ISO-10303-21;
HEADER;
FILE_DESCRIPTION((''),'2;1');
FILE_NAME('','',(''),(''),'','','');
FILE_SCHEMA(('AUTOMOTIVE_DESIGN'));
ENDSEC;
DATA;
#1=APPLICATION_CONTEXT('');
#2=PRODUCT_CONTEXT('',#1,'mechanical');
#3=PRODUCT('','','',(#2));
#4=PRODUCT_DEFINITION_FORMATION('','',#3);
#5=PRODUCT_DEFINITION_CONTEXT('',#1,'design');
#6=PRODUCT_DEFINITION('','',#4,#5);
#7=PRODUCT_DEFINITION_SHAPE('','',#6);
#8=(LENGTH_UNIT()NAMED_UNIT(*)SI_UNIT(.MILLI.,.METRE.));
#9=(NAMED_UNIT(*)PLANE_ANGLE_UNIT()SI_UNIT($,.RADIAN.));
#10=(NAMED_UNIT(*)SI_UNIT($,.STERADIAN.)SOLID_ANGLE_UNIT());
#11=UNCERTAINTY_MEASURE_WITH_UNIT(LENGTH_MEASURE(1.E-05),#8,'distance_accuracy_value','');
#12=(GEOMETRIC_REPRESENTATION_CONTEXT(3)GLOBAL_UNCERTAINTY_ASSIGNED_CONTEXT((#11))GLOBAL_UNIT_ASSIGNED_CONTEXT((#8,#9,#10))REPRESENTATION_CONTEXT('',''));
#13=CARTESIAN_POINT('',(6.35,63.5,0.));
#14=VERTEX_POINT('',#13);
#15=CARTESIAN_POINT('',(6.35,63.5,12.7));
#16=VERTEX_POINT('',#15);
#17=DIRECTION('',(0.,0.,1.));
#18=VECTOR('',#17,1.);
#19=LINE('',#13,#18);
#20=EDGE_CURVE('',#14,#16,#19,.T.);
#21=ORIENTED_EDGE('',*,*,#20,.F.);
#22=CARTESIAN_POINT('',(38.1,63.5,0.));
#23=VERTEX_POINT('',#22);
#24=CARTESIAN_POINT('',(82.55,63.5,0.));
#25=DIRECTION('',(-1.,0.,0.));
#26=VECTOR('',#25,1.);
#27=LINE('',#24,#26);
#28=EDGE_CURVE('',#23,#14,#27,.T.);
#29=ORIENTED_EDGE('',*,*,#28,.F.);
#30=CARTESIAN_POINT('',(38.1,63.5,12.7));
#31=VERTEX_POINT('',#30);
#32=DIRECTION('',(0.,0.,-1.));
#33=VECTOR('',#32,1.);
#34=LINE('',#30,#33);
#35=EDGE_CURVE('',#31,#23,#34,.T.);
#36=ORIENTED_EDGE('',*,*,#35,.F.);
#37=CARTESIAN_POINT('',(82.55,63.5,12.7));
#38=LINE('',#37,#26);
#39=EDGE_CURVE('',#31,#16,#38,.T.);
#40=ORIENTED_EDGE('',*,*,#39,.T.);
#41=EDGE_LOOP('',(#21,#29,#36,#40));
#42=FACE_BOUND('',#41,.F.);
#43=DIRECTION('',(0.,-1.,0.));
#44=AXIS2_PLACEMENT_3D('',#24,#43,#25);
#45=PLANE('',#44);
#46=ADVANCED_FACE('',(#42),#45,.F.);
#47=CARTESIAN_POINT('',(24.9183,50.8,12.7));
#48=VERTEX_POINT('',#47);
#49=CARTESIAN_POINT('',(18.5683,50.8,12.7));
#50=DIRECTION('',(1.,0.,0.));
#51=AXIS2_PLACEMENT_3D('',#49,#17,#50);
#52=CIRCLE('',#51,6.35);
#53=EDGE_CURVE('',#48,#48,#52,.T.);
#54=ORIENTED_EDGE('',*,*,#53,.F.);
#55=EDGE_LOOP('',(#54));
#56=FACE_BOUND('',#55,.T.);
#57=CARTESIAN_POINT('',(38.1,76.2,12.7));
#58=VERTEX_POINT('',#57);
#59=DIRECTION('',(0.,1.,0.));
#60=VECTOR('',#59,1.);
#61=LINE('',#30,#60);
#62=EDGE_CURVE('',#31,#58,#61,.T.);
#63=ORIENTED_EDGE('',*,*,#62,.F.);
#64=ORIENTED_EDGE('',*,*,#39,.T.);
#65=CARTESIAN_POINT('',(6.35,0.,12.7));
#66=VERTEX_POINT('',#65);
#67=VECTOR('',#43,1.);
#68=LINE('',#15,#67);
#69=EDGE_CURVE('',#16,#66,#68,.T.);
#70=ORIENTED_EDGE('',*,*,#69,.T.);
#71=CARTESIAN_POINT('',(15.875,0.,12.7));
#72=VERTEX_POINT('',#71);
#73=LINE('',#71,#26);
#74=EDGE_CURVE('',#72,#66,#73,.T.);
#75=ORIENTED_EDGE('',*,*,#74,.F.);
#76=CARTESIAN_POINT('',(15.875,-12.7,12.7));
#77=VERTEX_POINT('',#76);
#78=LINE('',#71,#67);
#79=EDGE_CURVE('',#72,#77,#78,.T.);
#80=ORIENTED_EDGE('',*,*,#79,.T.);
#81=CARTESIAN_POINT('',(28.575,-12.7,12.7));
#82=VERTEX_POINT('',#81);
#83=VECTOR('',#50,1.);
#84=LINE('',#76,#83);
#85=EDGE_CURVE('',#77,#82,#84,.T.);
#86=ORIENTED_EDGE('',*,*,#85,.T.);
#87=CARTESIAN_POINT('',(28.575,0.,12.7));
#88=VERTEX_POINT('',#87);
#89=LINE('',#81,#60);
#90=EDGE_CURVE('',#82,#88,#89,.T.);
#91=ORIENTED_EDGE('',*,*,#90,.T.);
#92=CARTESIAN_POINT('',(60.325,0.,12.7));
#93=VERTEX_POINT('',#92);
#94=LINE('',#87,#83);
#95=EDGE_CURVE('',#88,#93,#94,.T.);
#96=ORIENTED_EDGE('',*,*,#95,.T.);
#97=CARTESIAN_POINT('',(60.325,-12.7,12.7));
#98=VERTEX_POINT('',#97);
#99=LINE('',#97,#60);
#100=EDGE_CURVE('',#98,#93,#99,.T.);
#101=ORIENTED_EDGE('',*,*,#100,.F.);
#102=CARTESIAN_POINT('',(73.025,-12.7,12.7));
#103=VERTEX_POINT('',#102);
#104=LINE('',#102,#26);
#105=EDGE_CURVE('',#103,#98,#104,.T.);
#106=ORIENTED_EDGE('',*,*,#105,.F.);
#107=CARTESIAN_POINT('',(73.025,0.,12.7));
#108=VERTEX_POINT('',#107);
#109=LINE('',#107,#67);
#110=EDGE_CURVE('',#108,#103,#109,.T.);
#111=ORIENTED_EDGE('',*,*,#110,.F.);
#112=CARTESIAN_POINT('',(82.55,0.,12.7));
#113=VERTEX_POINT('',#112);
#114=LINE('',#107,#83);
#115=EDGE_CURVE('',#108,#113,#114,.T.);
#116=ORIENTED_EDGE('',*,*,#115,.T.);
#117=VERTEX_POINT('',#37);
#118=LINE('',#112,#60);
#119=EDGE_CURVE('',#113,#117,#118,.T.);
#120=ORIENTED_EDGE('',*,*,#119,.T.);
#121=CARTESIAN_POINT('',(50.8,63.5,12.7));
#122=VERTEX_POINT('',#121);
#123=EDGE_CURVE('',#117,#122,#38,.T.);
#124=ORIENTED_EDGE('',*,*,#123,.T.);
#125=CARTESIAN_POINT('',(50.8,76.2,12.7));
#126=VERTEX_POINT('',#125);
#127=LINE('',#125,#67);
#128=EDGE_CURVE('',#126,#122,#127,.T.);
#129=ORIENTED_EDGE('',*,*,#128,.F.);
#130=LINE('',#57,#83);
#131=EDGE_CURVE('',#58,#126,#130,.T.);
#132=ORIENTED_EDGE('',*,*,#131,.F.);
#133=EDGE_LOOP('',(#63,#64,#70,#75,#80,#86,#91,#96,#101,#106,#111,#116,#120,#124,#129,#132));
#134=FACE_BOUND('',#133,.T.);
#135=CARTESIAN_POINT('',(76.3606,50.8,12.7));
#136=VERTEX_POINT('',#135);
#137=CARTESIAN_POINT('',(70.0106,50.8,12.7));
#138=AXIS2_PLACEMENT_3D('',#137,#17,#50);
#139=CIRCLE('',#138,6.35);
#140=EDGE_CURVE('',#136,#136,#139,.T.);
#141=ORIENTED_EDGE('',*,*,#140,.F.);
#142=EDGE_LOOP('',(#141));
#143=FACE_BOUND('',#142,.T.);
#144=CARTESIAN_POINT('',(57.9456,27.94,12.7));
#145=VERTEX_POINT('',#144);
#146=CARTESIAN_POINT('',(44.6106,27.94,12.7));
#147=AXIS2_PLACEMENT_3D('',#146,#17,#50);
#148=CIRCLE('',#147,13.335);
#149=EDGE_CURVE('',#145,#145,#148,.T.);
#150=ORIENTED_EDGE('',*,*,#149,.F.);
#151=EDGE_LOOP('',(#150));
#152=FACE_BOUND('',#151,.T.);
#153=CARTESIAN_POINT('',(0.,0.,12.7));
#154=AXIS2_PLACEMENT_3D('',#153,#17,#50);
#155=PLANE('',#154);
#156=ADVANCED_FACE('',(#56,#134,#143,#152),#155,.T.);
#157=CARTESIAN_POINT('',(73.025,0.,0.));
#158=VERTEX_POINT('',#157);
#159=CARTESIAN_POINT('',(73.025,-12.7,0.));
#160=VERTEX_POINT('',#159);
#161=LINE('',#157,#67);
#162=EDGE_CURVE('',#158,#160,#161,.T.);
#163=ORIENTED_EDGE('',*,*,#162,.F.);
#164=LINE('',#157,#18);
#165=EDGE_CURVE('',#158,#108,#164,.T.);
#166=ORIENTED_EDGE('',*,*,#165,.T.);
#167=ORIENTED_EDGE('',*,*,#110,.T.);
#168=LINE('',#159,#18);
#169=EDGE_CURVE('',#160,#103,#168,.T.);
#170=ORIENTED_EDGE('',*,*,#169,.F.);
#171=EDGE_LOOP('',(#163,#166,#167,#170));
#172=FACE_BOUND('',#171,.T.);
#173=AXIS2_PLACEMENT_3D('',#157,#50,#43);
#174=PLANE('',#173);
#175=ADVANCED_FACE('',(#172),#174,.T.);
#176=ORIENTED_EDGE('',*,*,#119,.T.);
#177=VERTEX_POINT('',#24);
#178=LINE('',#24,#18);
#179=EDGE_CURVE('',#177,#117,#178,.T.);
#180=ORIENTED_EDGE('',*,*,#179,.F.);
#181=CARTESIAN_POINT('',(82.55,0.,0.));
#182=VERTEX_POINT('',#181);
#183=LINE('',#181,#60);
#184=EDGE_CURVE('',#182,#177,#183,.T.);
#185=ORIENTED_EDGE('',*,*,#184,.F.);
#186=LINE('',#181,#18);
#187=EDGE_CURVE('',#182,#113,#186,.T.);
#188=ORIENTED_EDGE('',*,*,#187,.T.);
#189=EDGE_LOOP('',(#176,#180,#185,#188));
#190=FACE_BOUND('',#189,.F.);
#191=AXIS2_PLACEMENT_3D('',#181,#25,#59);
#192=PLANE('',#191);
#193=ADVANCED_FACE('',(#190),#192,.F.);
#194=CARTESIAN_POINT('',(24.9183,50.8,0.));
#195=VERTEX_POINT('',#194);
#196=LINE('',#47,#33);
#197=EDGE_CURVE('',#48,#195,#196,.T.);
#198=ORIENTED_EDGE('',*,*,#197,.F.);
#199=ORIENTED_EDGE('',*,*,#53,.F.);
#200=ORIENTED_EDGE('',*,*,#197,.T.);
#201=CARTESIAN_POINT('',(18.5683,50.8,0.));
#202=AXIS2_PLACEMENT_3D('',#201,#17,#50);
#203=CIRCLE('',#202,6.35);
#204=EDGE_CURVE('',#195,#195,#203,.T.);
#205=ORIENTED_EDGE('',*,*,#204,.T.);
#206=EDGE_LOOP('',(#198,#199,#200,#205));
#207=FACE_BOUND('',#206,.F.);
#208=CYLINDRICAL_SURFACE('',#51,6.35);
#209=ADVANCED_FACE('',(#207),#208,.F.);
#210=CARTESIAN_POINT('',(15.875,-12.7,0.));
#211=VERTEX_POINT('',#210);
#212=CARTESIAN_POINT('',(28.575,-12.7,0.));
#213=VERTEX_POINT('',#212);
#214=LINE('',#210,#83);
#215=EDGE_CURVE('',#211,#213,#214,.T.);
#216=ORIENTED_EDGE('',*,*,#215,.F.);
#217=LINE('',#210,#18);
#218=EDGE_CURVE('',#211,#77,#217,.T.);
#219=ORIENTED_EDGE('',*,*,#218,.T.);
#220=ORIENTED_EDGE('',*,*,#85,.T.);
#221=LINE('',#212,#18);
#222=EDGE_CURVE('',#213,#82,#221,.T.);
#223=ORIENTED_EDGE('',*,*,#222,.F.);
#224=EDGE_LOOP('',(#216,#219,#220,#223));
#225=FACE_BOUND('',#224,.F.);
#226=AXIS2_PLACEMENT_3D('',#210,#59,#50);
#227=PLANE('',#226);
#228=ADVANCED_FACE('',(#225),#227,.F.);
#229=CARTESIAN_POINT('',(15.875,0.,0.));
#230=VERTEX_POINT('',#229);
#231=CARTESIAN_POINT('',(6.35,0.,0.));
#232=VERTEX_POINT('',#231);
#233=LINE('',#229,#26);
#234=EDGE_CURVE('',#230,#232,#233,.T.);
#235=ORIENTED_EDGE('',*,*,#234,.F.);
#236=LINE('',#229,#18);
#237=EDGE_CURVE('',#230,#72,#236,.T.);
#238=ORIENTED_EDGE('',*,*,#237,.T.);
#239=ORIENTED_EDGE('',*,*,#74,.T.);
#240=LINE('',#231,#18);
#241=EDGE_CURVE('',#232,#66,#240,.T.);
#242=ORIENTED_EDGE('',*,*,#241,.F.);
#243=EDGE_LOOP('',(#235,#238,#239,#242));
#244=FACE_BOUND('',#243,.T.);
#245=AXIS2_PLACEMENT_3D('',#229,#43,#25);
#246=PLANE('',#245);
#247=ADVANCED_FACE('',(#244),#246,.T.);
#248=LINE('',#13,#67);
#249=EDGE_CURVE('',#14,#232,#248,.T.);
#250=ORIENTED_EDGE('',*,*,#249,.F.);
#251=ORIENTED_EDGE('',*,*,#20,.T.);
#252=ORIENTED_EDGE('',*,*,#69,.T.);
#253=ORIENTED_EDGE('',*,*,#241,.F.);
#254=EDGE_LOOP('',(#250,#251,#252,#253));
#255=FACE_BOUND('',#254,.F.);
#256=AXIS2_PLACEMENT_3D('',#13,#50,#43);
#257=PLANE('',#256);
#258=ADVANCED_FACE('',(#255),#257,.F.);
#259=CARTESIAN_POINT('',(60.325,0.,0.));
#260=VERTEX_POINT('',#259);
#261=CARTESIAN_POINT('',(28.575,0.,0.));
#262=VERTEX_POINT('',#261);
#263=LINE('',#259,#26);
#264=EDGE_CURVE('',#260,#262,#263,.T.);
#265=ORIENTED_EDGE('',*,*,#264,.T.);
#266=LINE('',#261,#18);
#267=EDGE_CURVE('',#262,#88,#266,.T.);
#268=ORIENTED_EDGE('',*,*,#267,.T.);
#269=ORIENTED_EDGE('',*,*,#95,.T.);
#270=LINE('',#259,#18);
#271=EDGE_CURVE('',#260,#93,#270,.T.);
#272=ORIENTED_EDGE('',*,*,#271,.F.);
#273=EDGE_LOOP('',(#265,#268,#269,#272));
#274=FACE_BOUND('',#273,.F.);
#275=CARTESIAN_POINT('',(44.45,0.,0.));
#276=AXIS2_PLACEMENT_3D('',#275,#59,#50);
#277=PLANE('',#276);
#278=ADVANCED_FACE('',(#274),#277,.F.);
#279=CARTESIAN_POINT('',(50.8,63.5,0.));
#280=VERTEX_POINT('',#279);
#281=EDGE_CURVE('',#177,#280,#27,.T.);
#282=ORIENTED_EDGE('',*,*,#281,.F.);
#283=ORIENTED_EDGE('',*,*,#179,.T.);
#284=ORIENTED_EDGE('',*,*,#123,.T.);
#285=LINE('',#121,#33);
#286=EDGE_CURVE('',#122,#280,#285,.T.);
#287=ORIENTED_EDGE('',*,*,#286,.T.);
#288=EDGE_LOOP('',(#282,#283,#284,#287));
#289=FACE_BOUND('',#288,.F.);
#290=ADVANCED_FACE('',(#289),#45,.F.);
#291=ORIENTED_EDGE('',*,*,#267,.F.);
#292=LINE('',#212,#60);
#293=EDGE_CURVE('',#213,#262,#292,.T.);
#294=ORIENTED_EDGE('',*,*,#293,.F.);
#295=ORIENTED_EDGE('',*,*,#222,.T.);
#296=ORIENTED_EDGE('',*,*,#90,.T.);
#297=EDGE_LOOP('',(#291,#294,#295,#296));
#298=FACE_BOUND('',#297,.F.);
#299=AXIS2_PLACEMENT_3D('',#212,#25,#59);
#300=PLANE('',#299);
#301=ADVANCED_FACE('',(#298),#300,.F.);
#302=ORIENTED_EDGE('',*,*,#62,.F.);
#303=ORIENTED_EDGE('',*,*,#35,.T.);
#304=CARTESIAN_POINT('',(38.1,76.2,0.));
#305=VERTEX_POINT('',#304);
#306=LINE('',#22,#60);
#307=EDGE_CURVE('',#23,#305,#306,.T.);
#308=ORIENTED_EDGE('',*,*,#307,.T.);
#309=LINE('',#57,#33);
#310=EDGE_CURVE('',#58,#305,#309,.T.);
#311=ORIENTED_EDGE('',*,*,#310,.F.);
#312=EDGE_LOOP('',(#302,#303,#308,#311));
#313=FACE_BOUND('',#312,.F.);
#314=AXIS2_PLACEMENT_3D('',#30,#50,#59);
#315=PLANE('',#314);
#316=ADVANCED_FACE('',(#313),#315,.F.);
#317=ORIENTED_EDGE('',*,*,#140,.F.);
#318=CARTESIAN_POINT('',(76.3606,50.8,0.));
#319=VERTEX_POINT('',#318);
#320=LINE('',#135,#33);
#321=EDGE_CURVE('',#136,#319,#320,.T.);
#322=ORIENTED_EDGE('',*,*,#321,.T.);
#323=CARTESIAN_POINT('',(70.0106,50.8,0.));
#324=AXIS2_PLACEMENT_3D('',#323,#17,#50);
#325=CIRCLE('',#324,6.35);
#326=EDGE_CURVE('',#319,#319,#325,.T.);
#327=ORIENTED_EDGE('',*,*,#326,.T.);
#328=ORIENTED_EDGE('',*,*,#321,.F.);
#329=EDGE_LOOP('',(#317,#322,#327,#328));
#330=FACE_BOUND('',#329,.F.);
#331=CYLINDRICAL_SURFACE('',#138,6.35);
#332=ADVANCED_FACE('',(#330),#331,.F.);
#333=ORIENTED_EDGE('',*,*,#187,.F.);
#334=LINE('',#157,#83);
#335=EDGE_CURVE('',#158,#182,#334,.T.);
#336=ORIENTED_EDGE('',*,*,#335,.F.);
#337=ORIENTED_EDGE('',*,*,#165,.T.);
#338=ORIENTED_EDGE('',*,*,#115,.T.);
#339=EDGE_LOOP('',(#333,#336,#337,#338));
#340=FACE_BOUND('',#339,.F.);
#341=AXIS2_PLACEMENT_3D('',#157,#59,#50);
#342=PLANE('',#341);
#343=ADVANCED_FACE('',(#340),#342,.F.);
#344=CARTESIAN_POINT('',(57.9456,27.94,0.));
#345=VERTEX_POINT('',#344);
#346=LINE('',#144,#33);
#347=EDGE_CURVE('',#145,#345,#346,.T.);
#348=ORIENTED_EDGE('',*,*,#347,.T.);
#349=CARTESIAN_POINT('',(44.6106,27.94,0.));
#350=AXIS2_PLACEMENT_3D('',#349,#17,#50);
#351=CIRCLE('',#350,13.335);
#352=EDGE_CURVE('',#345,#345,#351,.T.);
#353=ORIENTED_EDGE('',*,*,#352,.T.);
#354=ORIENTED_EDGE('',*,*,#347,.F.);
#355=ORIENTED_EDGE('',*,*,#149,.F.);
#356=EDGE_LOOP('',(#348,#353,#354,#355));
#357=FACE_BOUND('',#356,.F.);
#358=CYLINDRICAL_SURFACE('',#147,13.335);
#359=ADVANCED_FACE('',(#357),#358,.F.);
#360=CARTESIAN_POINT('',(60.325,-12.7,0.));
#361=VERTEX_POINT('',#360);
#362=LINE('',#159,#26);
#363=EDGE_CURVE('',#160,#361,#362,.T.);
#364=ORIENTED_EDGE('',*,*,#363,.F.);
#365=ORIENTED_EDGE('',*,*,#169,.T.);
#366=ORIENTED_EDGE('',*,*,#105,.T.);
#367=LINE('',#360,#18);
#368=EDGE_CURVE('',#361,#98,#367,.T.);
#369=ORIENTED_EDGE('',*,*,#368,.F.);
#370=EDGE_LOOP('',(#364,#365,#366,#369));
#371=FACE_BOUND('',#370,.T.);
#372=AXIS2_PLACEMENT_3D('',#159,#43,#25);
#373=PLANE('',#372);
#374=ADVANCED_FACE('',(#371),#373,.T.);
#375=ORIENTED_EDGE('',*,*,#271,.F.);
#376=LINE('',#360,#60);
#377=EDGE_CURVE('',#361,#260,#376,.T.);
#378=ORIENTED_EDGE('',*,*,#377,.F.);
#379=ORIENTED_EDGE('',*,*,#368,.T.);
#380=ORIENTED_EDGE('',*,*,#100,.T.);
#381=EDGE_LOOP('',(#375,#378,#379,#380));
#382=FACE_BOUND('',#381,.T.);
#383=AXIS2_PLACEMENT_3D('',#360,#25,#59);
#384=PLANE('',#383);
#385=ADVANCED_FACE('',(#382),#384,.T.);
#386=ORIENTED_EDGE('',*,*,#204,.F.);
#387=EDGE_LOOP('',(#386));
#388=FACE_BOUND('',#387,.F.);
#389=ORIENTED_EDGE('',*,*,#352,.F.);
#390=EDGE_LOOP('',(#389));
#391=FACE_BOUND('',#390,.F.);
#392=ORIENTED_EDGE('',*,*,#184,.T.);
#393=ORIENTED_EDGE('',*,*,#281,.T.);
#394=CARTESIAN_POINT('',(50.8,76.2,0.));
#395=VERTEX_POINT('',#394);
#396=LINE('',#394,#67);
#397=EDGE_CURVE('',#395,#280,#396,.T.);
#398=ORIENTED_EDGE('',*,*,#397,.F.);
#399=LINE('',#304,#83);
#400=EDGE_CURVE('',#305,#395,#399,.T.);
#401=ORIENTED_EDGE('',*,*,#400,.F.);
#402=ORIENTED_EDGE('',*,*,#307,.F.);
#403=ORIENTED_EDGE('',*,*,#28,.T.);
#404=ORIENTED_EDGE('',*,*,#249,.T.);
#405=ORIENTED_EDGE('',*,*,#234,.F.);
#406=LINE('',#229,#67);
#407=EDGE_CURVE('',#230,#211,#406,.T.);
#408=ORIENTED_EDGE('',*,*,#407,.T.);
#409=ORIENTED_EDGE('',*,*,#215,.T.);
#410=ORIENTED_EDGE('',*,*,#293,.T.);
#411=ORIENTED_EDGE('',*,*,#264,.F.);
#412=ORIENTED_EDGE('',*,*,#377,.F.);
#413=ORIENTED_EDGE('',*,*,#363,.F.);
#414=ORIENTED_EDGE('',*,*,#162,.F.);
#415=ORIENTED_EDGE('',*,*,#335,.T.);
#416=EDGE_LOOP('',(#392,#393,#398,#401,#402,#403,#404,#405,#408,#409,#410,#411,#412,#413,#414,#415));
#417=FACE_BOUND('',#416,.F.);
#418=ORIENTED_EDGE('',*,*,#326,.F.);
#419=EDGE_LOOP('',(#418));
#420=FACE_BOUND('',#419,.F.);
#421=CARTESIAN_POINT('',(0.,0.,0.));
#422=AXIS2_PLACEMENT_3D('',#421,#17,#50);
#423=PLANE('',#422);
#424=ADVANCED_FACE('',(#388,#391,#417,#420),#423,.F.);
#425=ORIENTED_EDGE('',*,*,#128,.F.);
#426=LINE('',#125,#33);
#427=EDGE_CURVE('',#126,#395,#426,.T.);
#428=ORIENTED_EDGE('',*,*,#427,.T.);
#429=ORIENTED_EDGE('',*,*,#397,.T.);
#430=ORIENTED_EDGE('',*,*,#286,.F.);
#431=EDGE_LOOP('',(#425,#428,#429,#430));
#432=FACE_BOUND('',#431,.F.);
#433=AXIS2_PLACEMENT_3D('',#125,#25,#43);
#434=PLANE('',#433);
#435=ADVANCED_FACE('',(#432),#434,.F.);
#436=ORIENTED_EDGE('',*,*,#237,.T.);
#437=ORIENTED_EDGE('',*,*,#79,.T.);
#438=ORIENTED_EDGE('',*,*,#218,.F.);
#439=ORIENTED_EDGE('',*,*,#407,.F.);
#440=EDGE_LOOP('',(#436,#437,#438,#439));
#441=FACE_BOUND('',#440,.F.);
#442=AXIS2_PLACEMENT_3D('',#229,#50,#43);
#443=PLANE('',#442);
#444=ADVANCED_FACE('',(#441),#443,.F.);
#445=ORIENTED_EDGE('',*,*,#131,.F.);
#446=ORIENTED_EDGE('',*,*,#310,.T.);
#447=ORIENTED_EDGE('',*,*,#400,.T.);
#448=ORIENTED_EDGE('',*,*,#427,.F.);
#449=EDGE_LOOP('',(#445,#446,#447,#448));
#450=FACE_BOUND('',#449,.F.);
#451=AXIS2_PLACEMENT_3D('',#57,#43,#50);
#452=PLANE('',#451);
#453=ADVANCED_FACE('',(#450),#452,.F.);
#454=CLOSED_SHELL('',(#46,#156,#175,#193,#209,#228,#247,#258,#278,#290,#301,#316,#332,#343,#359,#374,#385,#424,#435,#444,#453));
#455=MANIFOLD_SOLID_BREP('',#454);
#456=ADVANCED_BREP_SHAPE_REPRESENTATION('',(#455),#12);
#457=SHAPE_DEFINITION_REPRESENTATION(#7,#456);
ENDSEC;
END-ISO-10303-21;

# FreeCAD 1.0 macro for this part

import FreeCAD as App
import Part
import Sketcher
Q = App.Units.Quantity


def add_polygon(sketch, points):
    """Adds a closed chain of lines whose ends are joined by coincident constraints."""
    first, n = sketch.GeometryCount, len(points)
    for a, b in zip(points, points[1:] + points[:1]):
        sketch.addGeometry(Part.LineSegment(App.Vector(*a, 0), App.Vector(*b, 0)), False)
    for i in range(n):
        sketch.addConstraint(Sketcher.Constraint("Coincident", first + i, 2, first + (i + 1) % n, 1))

doc = App.newDocument("Part")
body = doc.addObject("PartDesign::Body", "Body")

# Sketch on XY plane
sketch1 = body.newObject("Sketcher::SketchObject", "Sketch")
sketch1.AttachmentSupport = (doc.getObject("XY_Plane"), [""])
sketch1.MapMode = "FlatFace"
add_polygon(sketch1, [(82.55, 63.5), (6.35, 63.5), (6.35, 0), (15.875, 0), (15.875, -12.7), (28.575, -12.7), (28.575, 0), (60.325, 0), (60.325, -12.7), (73.025, -12.7), (73.025, 0), (82.55, 0)])  # lines 0-11
sketch1.addConstraint([
    Sketcher.Constraint("Horizontal", 0),
    Sketcher.Constraint("Vertical", 1),
    Sketcher.Constraint("Horizontal", 2),
    Sketcher.Constraint("Vertical", 3),
    Sketcher.Constraint("Horizontal", 4),
    Sketcher.Constraint("Vertical", 5),
    Sketcher.Constraint("Horizontal", 6),
    Sketcher.Constraint("Vertical", 7),
    Sketcher.Constraint("Horizontal", 8),
    Sketcher.Constraint("Vertical", 9),
    Sketcher.Constraint("Horizontal", 10),
    Sketcher.Constraint("Vertical", 11),
    Sketcher.Constraint("PointOnObject", 1, 2, -1),
    Sketcher.Constraint("PointOnObject", 5, 2, -1),
    Sketcher.Constraint("PointOnObject", 9, 2, -1),
    Sketcher.Constraint("Horizontal", 4, 2, 7, 2),
    Sketcher.Constraint("Equal", 4, 8),
    Sketcher.Constraint("Equal", 2, 10),
    Sketcher.Constraint("Equal", 8, 3),
    Sketcher.Constraint("DistanceX", 0, 2, 0, 1, Q("3 in")),
    Sketcher.Constraint("DistanceX", 4, 1, 4, 2, Q("0.5 in")),
    Sketcher.Constraint("DistanceY", 1, 2, 1, 1, Q("2.5 in")),
    Sketcher.Constraint("DistanceX", -1, 1, 2, 2, Q("0.625 in")),
    Sketcher.Constraint("DistanceX", 6, 1, 6, 2, Q("1.25 in")),
])
pad1 = body.newObject("PartDesign::Pad", "Pad")
pad1.Profile = sketch1
pad1.Length = Q("0.5 in")

# Sketch on XY plane
sketch2 = body.newObject("Sketcher::SketchObject", "Sketch001")
sketch2.AttachmentSupport = (doc.getObject("XY_Plane"), [""])
sketch2.MapMode = "FlatFace"
sketch2.AttachmentOffset = App.Placement(App.Vector(0, 0, 0.5 * 25.4), App.Rotation())
sketch2.addGeometry([
    Part.Circle(App.Vector(18.5683, 50.8, 0), App.Vector(0, 0, 1), 6.35),
    Part.Circle(App.Vector(44.6106, 27.94, 0), App.Vector(0, 0, 1), 13.335),
    Part.Circle(App.Vector(70.0106, 50.8, 0), App.Vector(0, 0, 1), 6.35),
], False)
sketch2.addConstraint([
    Sketcher.Constraint("Equal", 0, 2),
    Sketcher.Constraint("Horizontal", 0, 3, 2, 3),
    Sketcher.Constraint("Diameter", 0, Q("0.5 in")),
    Sketcher.Constraint("Diameter", 1, Q("1.05 in")),
    Sketcher.Constraint("DistanceY", -1, 1, 1, 3, Q("1.1 in")),
    Sketcher.Constraint("DistanceY", -1, 1, 0, 3, Q("2 in")),
    Sketcher.Constraint("DistanceX", 1, 3, 2, 3, Q("1 in")),
    Sketcher.Constraint("DistanceX", -1, 1, 0, 3, 18.5683),
    Sketcher.Constraint("DistanceX", -1, 1, 1, 3, 44.6106),
])
pocket1 = body.newObject("PartDesign::Pocket", "Pocket")
pocket1.Profile = sketch2
pocket1.Length = Q("0.5 in")

# Sketch on XY plane
sketch3 = body.newObject("Sketcher::SketchObject", "Sketch002")
sketch3.AttachmentSupport = (doc.getObject("XY_Plane"), [""])
sketch3.MapMode = "FlatFace"
sketch3.AttachmentOffset = App.Placement(App.Vector(0, 0, 0.5 * 25.4), App.Rotation())
add_polygon(sketch3, [(50.8, 76.2), (38.1, 76.2), (38.1, 63.5), (50.8, 63.5)])  # lines 0-3
sketch3.addConstraint([
    Sketcher.Constraint("Horizontal", 0),
    Sketcher.Constraint("Vertical", 1),
    Sketcher.Constraint("Horizontal", 2),
    Sketcher.Constraint("Vertical", 3),
    Sketcher.Constraint("Equal", 2, 1),
    Sketcher.Constraint("DistanceX", 0, 2, 0, 1, Q("0.5 in")),
    Sketcher.Constraint("DistanceY", -1, 1, 0, 2, Q("3 in")),
    Sketcher.Constraint("DistanceX", -1, 1, 2, 2, Q("2 in")),
])
pad2 = body.newObject("PartDesign::Pad", "Pad001")
pad2.Profile = sketch3
pad2.Length = Q("0.5 in")
pad2.Reversed = True

doc.recompute()
